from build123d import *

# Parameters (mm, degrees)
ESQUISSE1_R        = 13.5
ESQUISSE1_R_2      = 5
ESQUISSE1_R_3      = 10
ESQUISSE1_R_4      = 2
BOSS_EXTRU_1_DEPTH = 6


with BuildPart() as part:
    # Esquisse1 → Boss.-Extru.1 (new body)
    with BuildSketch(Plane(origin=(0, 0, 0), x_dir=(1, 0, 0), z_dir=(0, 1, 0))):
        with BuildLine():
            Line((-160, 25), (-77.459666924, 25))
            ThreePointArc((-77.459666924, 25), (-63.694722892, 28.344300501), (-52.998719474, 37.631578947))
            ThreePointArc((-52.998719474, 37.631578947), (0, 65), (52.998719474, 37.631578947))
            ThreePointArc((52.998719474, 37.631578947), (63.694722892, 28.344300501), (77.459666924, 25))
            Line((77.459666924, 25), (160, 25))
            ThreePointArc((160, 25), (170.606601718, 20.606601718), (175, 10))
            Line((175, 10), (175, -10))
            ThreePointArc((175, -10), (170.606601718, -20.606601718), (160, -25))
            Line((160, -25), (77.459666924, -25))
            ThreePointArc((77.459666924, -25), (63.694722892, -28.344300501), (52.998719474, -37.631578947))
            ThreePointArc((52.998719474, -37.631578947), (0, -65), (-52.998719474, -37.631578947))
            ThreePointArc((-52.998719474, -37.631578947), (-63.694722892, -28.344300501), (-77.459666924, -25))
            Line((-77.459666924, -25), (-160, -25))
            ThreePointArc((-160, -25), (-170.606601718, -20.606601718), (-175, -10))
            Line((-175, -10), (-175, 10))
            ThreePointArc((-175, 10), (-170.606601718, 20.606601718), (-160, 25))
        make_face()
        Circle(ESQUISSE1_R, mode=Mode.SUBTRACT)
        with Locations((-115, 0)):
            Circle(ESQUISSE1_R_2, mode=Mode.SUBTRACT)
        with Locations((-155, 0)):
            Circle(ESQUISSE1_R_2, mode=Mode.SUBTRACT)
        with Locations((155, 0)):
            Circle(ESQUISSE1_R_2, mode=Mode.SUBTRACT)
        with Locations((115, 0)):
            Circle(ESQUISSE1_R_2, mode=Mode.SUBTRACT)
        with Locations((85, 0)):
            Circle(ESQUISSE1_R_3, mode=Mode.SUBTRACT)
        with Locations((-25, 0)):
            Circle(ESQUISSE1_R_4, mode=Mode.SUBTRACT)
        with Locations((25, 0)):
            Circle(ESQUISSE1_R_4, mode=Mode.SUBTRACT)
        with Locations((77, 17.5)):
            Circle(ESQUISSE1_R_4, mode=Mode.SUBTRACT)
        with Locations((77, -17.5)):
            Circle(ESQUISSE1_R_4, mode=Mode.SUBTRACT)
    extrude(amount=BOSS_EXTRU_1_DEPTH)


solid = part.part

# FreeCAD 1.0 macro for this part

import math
import FreeCAD as App
import Part
import Sketcher
from FreeCAD import Vector
Q = App.Units.Quantity

doc = App.newDocument("Part")
body = doc.addObject("PartDesign::Body", "Body")

# Sketch on XZ plane
sketch1 = body.newObject("Sketcher::SketchObject", "Sketch")
sketch1.AttachmentSupport = (doc.getObject("XZ_Plane"), [""])
sketch1.MapMode = "FlatFace"
sketch1.addGeometry([
    Part.LineSegment(Vector(-77.459667, -25, 0), Vector(-160, -25, 0)),  # 0
    Part.ArcOfCircle(Part.Circle(Vector(-160, -10, 0), Vector(0, 0, 1), 15), math.radians(180), math.radians(270)),  # 1
    Part.LineSegment(Vector(-175, -10, 0), Vector(-175, 10, 0)),  # 2
    Part.ArcOfCircle(Part.Circle(Vector(-160, 10, 0), Vector(0, 0, 1), 15), math.radians(90), math.radians(180)),  # 3
    Part.LineSegment(Vector(-160, 25, 0), Vector(-77.459667, 25, 0)),  # 4
    Part.ArcOfCircle(Part.Circle(Vector(-77.459667, 55, 0), Vector(0, 0, 1), 30), math.radians(-90), math.radians(-35.37654)),  # 5
    Part.ArcOfCircle(Part.Circle(Vector(0, 0, 0), Vector(0, 0, 1), 65), math.radians(35.37654), math.radians(144.62346)),  # 6
    Part.ArcOfCircle(Part.Circle(Vector(77.459667, 55, 0), Vector(0, 0, 1), 30), math.radians(-144.62346), math.radians(-90)),  # 7
    Part.LineSegment(Vector(77.459667, 25, 0), Vector(160, 25, 0)),  # 8
    Part.ArcOfCircle(Part.Circle(Vector(160, 10, 0), Vector(0, 0, 1), 15), math.radians(0), math.radians(90)),  # 9
    Part.LineSegment(Vector(175, 10, 0), Vector(175, -10, 0)),  # 10
    Part.ArcOfCircle(Part.Circle(Vector(160, -10, 0), Vector(0, 0, 1), 15), math.radians(-90), math.radians(0)),  # 11
    Part.LineSegment(Vector(160, -25, 0), Vector(77.459667, -25, 0)),  # 12
    Part.ArcOfCircle(Part.Circle(Vector(77.459667, -55, 0), Vector(0, 0, 1), 30), math.radians(90), math.radians(144.62346)),  # 13
    Part.ArcOfCircle(Part.Circle(Vector(0, 0, 0), Vector(0, 0, 1), 65), math.radians(-144.62346), math.radians(-35.37654)),  # 14
    Part.ArcOfCircle(Part.Circle(Vector(-77.459667, -55, 0), Vector(0, 0, 1), 30), math.radians(35.37654), math.radians(90)),  # 15
    Part.Circle(Vector(77, 17.5, 0), Vector(0, 0, 1), 2),  # 16
    Part.Circle(Vector(155, 0, 0), Vector(0, 0, 1), 5),  # 17
    Part.Circle(Vector(115, 0, 0), Vector(0, 0, 1), 5),  # 18
    Part.Circle(Vector(85, 0, 0), Vector(0, 0, 1), 10),  # 19
    Part.Circle(Vector(25, 0, 0), Vector(0, 0, 1), 2),  # 20
    Part.Circle(Vector(77, -17.5, 0), Vector(0, 0, 1), 2),  # 21
    Part.Circle(Vector(0, 0, 0), Vector(0, 0, 1), 13.5),  # 22
    Part.Circle(Vector(-25, 0, 0), Vector(0, 0, 1), 2),  # 23
    Part.Circle(Vector(-115, 0, 0), Vector(0, 0, 1), 5),  # 24
    Part.Circle(Vector(-155, 0, 0), Vector(0, 0, 1), 5),  # 25
], False)
sketch1.addConstraint([
    Sketcher.Constraint("Tangent", 0, 2, 1, 2),
    Sketcher.Constraint("Tangent", 1, 1, 2, 1),
    Sketcher.Constraint("Tangent", 2, 2, 3, 2),
    Sketcher.Constraint("Tangent", 3, 1, 4, 1),
    Sketcher.Constraint("Tangent", 4, 2, 5, 1),
    Sketcher.Constraint("Tangent", 5, 2, 6, 2),
    Sketcher.Constraint("Tangent", 6, 1, 7, 1),
    Sketcher.Constraint("Tangent", 7, 2, 8, 1),
    Sketcher.Constraint("Tangent", 8, 2, 9, 2),
    Sketcher.Constraint("Tangent", 9, 1, 10, 1),
    Sketcher.Constraint("Tangent", 10, 2, 11, 2),
    Sketcher.Constraint("Tangent", 11, 1, 12, 1),
    Sketcher.Constraint("Tangent", 12, 2, 13, 1),
    Sketcher.Constraint("Tangent", 13, 2, 14, 2),
    Sketcher.Constraint("Tangent", 14, 1, 15, 1),
    Sketcher.Constraint("Tangent", 15, 2, 0, 1),
    Sketcher.Constraint("Horizontal", 0),
    Sketcher.Constraint("Vertical", 2),
    Sketcher.Constraint("Horizontal", 4),
    Sketcher.Constraint("Horizontal", 8),
    Sketcher.Constraint("Vertical", 10),
    Sketcher.Constraint("Horizontal", 12),
    Sketcher.Constraint("Coincident", 6, 3, -1, 1),
    Sketcher.Constraint("Coincident", 14, 3, -1, 1),
    Sketcher.Constraint("Coincident", 22, 3, -1, 1),
    Sketcher.Constraint("Equal", 1, 3),
    Sketcher.Constraint("Equal", 5, 7),
    Sketcher.Constraint("Equal", 3, 9),
    Sketcher.Constraint("Equal", 9, 11),
    Sketcher.Constraint("Equal", 7, 13),
    Sketcher.Constraint("Equal", 6, 14),
    Sketcher.Constraint("Equal", 13, 15),
    Sketcher.Constraint("Equal", 17, 18),
    Sketcher.Constraint("Equal", 16, 20),
    Sketcher.Constraint("Equal", 20, 21),
    Sketcher.Constraint("Equal", 21, 23),
    Sketcher.Constraint("Equal", 18, 24),
    Sketcher.Constraint("Equal", 24, 25),
    Sketcher.Constraint("Symmetric", 1, 3, 9, 3, -1, 1),
    Sketcher.Constraint("Symmetric", 20, 3, 23, 3, -1, 1),
    Sketcher.Constraint("Symmetric", 18, 3, 24, 3, -1, 1),
    Sketcher.Constraint("Symmetric", 17, 3, 25, 3, -1, 1),
    Sketcher.Constraint("Symmetric", 16, 3, 21, 3, -1),
    Sketcher.Constraint("PointOnObject", 17, 3, -1),
    Sketcher.Constraint("PointOnObject", 18, 3, -1),
    Sketcher.Constraint("PointOnObject", 19, 3, -1),
    Sketcher.Constraint("PointOnObject", 20, 3, -1),
    Sketcher.Constraint("Horizontal", 5, 3, 7, 3),
    Sketcher.Constraint("Horizontal", 1, 3, 11, 3),
    Sketcher.Constraint("Diameter", 16, Q("4 mm")),
    Sketcher.Constraint("Diameter", 17, Q("10 mm")),
    Sketcher.Constraint("Diameter", 19, Q("20 mm")),
    Sketcher.Constraint("Diameter", 22, Q("27 mm")),
    Sketcher.Constraint("Radius", 1, Q("15 mm")),
    Sketcher.Constraint("Radius", 5, Q("30 mm")),
    Sketcher.Constraint("Radius", 6, Q("65 mm")),
    Sketcher.Constraint("DistanceY", 2, 1, 2, 2, Q("20 mm")),
    Sketcher.Constraint("DistanceX", 1, 3, -1, 1, Q("160 mm")),
    Sketcher.Constraint("DistanceX", -1, 1, 16, 3, Q("77 mm")),
    Sketcher.Constraint("DistanceX", -1, 1, 17, 3, Q("155 mm")),
    Sketcher.Constraint("DistanceX", -1, 1, 18, 3, Q("115 mm")),
    Sketcher.Constraint("DistanceX", -1, 1, 19, 3, Q("85 mm")),
    Sketcher.Constraint("DistanceX", -1, 1, 20, 3, Q("25 mm")),
    Sketcher.Constraint("DistanceY", 21, 3, 16, 3, Q("35 mm")),
])
pad1 = body.newObject("PartDesign::Pad", "Pad")
pad1.Profile = sketch1
pad1.Length = 6
pad1.Reversed = True

doc.recompute()
